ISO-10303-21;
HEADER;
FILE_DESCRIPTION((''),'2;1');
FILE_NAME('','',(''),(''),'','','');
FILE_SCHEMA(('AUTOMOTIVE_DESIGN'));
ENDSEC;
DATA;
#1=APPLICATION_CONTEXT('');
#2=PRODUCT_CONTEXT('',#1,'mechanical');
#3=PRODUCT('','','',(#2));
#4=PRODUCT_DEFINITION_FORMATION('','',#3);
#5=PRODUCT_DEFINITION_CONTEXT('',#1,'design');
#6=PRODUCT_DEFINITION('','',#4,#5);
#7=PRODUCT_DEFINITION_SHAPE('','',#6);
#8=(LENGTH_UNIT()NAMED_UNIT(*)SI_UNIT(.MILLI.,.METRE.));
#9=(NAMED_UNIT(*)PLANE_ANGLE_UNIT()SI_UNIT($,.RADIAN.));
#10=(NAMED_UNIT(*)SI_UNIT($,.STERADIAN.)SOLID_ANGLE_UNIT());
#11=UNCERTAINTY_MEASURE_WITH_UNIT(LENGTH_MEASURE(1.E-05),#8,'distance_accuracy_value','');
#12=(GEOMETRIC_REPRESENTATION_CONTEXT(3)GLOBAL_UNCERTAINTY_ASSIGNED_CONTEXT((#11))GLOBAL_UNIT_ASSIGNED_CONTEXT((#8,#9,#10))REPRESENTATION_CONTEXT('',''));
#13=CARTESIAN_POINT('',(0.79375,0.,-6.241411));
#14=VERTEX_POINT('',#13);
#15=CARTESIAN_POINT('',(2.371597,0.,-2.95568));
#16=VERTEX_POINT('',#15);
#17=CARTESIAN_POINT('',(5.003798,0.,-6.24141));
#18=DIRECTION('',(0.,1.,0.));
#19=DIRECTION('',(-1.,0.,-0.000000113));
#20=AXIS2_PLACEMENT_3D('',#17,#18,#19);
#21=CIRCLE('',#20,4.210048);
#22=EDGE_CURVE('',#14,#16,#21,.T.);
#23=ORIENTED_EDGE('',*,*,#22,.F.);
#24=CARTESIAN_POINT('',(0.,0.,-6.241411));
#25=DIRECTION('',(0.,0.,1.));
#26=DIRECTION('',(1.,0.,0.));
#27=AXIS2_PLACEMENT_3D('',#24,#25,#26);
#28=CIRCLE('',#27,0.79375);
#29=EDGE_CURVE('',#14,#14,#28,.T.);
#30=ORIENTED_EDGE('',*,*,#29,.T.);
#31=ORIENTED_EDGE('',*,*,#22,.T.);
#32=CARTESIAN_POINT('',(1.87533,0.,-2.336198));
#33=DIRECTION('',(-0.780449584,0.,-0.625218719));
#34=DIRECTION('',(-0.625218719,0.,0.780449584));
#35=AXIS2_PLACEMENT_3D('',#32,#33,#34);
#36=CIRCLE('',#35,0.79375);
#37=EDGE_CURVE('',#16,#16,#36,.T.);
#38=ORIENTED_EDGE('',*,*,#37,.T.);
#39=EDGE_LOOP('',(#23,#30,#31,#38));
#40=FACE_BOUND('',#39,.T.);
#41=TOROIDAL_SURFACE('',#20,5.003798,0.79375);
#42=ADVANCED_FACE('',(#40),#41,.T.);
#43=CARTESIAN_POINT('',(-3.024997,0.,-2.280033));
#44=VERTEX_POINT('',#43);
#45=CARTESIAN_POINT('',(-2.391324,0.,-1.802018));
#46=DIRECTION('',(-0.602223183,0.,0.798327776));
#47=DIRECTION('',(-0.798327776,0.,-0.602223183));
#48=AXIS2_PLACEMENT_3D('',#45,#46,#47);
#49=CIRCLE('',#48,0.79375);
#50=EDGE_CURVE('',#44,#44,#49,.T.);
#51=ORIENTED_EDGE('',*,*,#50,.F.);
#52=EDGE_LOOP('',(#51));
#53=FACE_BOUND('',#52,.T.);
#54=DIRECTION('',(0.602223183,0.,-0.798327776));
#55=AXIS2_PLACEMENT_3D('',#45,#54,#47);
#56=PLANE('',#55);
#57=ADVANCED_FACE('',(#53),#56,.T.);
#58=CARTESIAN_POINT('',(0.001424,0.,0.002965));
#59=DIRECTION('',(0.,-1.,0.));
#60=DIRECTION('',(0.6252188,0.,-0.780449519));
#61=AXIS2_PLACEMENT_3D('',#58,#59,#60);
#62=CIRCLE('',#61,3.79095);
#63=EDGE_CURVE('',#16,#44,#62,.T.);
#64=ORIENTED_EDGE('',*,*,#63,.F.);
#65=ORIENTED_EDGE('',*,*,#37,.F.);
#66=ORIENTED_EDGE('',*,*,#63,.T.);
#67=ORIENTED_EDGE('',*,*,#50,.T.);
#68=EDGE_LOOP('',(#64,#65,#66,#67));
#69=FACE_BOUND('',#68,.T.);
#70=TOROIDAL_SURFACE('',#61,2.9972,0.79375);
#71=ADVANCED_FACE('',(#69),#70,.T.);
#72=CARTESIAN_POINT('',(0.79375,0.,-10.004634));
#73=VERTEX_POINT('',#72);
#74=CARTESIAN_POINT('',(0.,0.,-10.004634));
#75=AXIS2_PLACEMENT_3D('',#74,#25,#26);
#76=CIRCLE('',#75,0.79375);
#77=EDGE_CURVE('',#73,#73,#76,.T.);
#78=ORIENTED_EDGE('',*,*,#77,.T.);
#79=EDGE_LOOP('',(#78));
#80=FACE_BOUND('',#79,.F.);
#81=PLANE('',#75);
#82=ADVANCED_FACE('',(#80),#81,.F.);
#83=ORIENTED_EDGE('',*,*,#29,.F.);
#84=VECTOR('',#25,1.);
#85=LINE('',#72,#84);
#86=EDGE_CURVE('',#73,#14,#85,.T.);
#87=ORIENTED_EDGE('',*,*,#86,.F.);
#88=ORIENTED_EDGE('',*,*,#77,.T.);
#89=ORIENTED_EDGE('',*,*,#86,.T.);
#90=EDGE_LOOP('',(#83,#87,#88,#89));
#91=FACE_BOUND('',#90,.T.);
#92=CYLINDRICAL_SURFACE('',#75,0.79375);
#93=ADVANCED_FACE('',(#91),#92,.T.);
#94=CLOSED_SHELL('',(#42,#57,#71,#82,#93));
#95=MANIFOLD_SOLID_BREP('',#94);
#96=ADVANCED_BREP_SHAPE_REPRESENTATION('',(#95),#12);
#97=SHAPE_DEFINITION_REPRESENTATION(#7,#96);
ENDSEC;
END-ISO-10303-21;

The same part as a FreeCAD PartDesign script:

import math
import FreeCAD as App
import Part
import Sketcher
from FreeCAD import Vector
Q = App.Units.Quantity

doc = App.newDocument("Part")
body = doc.addObject("PartDesign::Body", "Body")

# Sketch on XY plane
sketch1 = body.newObject("Sketcher::SketchObject", "Sketch")
sketch1.AttachmentSupport = (doc.getObject("XY_Plane"), [""])
sketch1.MapMode = "FlatFace"
sketch1.AttachmentOffset = App.Placement(Vector(0, 0, -10.00463), App.Rotation())
sketch1.addGeometry(Part.Circle(Vector(0, 0, 0), Vector(0, 0, 1), 0.8), False)
sketch1.addConstraint(Sketcher.Constraint("Coincident", 0, 3, -1, 1))
sketch1.addConstraint(Sketcher.Constraint("Diameter", 0, Q("0.0625 in")))

# Sketch on XZ plane
sketch2 = body.newObject("Sketcher::SketchObject", "Sketch001")
sketch2.AttachmentSupport = (doc.getObject("XZ_Plane"), [""])
sketch2.MapMode = "FlatFace"
sketch2.addGeometry(Part.LineSegment(Vector(0, -10, 0), Vector(0, -6.2, 0)), False)
sketch2.addGeometry(Part.ArcOfCircle(Part.Circle(Vector(5, -6.2, 0), Vector(0, 0, 1), 5), math.radians(129), math.radians(180)), False)
sketch2.addGeometry(Part.ArcOfCircle(Part.Circle(Vector(0, 0, 0), Vector(0, 0, 1), 3), math.radians(-51), math.radians(217)), False)
sketch2.addConstraint(Sketcher.Constraint("Tangent", 0, 2, 1, 2))
sketch2.addConstraint(Sketcher.Constraint("Tangent", 1, 1, 2, 1))
sketch2.addConstraint(Sketcher.Constraint("Vertical", 0))
sketch2.addConstraint(Sketcher.Constraint("PointOnObject", 0, 1, -2))
sketch2.addConstraint(Sketcher.Constraint("Radius", 1, Q("0.1969999 in")))
sketch2.addConstraint(Sketcher.Constraint("Radius", 2, Q("0.118 in")))
sketch2.addConstraint(Sketcher.Constraint("DistanceY", 0, 1, 2, 3, Q("0.394 in")))
sketch2.addConstraint(Sketcher.Constraint("DistanceY", 0, 1, 0, 2, 3.763223))
sketch2.addConstraint(Sketcher.Constraint("DistanceY", 1, 3, -1, 1, 6.24141))
sketch2.addConstraint(Sketcher.Constraint("DistanceY", 2, 2, -1, 1, 1.802018))
doc.recompute()

additivepipe = body.newObject("PartDesign::AdditivePipe", "AdditivePipe")
additivepipe.Profile = sketch1
additivepipe.Spine = (sketch2, ["Edge1", "Edge2", "Edge3"])

doc.recompute()
